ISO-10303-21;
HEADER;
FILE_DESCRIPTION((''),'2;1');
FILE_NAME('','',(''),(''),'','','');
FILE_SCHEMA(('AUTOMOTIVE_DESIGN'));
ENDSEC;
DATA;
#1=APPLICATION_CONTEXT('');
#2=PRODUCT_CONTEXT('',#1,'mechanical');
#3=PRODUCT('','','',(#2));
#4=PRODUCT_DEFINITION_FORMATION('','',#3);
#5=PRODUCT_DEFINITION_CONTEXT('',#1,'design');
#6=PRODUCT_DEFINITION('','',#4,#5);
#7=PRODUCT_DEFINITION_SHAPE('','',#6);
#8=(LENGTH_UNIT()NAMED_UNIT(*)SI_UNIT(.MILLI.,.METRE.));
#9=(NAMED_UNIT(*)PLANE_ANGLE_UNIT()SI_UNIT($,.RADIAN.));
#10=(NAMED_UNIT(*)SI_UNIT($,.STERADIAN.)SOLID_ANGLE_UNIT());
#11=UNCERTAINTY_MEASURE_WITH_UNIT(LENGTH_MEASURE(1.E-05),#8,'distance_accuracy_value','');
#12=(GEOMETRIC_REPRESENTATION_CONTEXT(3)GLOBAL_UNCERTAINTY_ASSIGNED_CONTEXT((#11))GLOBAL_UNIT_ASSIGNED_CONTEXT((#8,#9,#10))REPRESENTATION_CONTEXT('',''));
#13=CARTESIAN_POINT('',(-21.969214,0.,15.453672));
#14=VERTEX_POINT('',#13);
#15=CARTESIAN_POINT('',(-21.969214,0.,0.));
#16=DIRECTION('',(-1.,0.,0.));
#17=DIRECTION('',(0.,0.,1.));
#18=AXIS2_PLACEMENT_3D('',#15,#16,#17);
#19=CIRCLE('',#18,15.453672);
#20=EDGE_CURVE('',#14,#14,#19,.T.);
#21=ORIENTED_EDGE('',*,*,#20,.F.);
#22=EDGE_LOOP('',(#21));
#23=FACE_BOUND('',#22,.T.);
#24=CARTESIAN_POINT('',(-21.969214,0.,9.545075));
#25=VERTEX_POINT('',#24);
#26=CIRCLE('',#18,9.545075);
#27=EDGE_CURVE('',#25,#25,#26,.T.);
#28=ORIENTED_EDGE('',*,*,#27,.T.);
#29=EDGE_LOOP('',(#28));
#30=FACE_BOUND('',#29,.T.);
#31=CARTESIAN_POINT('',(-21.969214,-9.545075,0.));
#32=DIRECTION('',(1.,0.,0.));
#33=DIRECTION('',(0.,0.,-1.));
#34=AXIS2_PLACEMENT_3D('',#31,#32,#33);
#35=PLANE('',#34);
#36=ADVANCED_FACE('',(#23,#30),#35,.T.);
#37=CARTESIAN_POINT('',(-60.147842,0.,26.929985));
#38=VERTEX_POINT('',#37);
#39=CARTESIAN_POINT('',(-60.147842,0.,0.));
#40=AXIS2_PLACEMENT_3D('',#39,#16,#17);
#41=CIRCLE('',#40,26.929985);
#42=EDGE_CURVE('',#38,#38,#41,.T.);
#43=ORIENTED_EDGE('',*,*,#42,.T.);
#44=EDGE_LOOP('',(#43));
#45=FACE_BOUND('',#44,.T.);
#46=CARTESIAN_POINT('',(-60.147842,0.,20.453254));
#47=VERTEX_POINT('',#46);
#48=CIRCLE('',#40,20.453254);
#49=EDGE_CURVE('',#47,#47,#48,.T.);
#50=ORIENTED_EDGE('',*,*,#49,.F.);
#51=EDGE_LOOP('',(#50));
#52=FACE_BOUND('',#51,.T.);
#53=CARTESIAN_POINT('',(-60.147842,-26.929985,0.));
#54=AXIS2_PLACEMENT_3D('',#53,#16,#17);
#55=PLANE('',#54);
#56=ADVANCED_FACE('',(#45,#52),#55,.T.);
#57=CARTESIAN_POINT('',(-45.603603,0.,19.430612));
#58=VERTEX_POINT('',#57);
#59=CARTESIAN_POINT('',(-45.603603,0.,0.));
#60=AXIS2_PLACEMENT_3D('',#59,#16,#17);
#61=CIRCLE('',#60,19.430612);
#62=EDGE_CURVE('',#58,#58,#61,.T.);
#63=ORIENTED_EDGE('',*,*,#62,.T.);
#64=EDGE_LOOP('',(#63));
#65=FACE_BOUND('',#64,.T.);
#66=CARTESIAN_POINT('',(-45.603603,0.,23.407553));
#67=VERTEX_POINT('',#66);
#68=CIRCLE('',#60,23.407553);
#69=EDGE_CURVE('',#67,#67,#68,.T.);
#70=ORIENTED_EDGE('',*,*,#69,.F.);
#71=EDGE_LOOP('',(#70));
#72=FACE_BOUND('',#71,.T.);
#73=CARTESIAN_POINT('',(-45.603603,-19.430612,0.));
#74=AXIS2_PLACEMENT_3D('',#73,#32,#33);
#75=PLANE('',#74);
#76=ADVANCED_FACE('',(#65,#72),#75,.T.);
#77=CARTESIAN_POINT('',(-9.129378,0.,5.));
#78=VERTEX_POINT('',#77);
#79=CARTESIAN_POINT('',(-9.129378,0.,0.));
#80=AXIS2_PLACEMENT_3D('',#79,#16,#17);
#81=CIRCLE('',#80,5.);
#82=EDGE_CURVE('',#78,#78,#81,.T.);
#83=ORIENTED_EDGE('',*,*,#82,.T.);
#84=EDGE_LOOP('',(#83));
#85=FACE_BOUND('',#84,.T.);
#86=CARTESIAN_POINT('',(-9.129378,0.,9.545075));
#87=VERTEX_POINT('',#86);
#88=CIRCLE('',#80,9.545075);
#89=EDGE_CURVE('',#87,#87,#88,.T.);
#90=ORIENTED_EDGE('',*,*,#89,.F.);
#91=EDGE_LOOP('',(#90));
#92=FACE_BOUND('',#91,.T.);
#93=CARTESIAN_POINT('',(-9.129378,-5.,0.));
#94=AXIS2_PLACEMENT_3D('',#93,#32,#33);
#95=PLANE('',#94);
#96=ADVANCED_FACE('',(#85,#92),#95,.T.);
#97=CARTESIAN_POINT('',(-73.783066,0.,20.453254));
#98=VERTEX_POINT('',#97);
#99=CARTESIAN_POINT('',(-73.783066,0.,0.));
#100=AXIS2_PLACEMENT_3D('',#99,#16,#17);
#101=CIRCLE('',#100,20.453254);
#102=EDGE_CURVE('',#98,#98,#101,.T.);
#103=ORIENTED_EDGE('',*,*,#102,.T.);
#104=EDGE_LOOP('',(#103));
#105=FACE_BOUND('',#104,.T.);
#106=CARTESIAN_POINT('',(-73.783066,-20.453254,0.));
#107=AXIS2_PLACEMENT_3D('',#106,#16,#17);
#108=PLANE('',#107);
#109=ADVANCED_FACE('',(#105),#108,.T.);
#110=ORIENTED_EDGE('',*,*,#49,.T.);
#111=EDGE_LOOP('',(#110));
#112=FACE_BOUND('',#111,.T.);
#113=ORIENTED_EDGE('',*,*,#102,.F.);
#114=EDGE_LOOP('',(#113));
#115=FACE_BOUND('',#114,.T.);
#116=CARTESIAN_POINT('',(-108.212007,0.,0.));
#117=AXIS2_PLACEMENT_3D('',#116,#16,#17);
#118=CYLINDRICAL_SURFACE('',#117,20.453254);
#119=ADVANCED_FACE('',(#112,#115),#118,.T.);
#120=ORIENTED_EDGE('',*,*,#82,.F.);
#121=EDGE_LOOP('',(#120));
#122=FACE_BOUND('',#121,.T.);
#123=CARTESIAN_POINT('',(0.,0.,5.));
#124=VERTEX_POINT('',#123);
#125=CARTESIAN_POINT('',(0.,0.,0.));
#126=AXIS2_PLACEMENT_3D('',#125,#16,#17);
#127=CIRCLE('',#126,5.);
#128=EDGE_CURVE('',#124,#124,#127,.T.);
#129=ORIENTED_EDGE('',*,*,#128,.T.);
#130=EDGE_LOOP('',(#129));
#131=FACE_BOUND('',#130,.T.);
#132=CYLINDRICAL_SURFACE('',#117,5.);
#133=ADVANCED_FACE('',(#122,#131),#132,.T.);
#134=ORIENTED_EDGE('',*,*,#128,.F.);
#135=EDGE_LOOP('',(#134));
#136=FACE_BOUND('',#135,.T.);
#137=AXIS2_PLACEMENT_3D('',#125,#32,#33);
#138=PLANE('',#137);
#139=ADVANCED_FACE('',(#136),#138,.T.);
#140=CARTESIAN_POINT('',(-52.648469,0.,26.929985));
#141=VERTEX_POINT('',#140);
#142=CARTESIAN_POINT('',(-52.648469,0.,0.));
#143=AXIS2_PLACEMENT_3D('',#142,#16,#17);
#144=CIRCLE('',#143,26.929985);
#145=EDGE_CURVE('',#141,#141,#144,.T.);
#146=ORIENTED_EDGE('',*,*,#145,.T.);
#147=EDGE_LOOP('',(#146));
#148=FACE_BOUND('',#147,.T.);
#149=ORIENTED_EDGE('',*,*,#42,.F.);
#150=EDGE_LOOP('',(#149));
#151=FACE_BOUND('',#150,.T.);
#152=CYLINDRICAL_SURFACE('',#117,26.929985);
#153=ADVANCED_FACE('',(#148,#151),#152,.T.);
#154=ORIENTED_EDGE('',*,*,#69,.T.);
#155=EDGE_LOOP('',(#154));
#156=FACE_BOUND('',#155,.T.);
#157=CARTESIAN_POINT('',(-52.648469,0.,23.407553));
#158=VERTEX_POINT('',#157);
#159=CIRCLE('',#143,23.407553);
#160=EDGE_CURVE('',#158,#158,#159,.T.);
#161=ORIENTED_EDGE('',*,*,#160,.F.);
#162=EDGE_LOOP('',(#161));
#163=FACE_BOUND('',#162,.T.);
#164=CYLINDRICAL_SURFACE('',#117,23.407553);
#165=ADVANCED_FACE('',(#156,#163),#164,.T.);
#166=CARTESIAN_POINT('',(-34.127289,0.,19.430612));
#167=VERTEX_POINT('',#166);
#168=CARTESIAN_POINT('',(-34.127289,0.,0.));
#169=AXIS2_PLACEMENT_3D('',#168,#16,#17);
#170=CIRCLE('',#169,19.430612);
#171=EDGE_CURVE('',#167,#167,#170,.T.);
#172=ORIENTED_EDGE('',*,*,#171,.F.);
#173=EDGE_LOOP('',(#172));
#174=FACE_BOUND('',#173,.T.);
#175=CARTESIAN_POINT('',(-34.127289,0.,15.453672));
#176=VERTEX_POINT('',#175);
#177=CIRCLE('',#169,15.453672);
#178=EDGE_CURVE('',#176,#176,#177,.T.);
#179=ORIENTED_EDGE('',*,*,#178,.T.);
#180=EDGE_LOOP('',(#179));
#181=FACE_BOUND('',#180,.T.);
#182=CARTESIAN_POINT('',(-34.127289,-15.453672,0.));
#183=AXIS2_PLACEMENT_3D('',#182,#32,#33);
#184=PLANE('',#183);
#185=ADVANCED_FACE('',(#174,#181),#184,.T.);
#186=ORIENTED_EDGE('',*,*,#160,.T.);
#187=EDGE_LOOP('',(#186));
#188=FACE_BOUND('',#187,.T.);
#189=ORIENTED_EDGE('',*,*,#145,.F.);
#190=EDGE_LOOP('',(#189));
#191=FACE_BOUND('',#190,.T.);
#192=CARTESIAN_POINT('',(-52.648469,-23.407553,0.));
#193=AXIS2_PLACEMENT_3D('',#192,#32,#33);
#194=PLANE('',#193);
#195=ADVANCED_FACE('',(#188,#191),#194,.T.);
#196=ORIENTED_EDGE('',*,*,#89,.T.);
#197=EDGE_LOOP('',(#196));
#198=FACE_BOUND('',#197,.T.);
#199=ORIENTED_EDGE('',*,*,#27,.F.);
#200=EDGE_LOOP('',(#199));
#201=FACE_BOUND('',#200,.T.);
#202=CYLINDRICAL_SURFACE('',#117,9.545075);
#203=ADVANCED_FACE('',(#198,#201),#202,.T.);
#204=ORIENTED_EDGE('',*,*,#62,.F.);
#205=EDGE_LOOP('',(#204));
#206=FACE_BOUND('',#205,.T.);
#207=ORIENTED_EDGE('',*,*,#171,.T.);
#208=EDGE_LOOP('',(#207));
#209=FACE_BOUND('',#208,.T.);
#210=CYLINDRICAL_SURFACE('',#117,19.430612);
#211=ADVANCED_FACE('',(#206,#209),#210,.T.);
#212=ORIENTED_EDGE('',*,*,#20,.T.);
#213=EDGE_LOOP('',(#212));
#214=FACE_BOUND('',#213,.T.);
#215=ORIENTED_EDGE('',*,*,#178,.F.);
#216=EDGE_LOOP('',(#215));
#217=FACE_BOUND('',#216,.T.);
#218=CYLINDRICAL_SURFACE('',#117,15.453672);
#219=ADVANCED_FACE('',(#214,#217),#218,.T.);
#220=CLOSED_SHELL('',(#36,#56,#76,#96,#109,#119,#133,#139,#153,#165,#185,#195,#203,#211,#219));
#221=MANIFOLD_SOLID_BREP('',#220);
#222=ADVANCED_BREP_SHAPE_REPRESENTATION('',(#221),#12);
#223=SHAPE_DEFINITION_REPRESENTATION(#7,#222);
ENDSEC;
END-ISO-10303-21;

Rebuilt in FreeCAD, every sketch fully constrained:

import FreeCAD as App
import Part
import Sketcher
from FreeCAD import Vector


def add_polygon(sketch, points):
    """Adds a closed chain of lines whose ends are joined by coincident constraints."""
    first, n = sketch.GeometryCount, len(points)
    for a, b in zip(points, points[1:] + points[:1]):
        sketch.addGeometry(Part.LineSegment(App.Vector(*a, 0), App.Vector(*b, 0)), False)
    for i in range(n):
        sketch.addConstraint(Sketcher.Constraint("Coincident", first + i, 2, first + (i + 1) % n, 1))

doc = App.newDocument("Part")
params = doc.addObject("Spreadsheet::Sheet", "Params")
for row, (alias, value) in enumerate([
    ("sketch1_height", "5 mm"),
    ("revolution_angle", "360 deg"),
], start=1):
    params.set(f"A{row}", alias)
    params.set(f"B{row}", "=" + value)
    params.setAlias(f"B{row}", alias)

body = doc.addObject("PartDesign::Body", "Body")

sketch1 = body.newObject("Sketcher::SketchObject", "Sketch")
sketch1.AttachmentSupport = (doc.getObject("XY_Plane"), [""])
sketch1.MapMode = "FlatFace"
add_polygon(sketch1, [(0, -5), (0, 0), (-73.8, 0), (-73.8, -20.5), (-60.1, -20.5), (-60.1, -26.9), (-52.6, -26.9), (-52.6, -23.4), (-45.6, -23.4), (-45.6, -19.4), (-34.1, -19.4), (-34.1, -15.5), (-22, -15.5), (-22, -9.5), (-9.1, -9.5), (-9.1, -5)])
sketch1.addConstraint([
    Sketcher.Constraint("Vertical", 0),
    Sketcher.Constraint("Horizontal", 1),
    Sketcher.Constraint("Vertical", 2),
    Sketcher.Constraint("Horizontal", 3),
    Sketcher.Constraint("Vertical", 4),
    Sketcher.Constraint("Horizontal", 5),
    Sketcher.Constraint("Vertical", 6),
    Sketcher.Constraint("Horizontal", 7),
    Sketcher.Constraint("Vertical", 8),
    Sketcher.Constraint("Horizontal", 9),
    Sketcher.Constraint("Vertical", 10),
    Sketcher.Constraint("Horizontal", 11),
    Sketcher.Constraint("Vertical", 12),
    Sketcher.Constraint("Horizontal", 13),
    Sketcher.Constraint("Vertical", 14),
    Sketcher.Constraint("Horizontal", 15),
    Sketcher.Constraint("Coincident", 0, 2, -1, 1),
    Sketcher.Constraint("Equal", 8, 10),
    Sketcher.Constraint("DistanceY", 0, 1, 0, 2, 5.0),
    Sketcher.Constraint("DistanceX", 15, 1, 15, 2, 9.129378),
    Sketcher.Constraint("DistanceY", 4, 2, 4, 1, 6.476731),
    Sketcher.Constraint("DistanceY", 8, 1, 8, 2, 3.97694),
    Sketcher.Constraint("DistanceY", 6, 2, 3, 2, 2.954299),
    Sketcher.Constraint("DistanceX", 1, 2, 1, 1, 73.783066),
    Sketcher.Constraint("DistanceX", 3, 1, 3, 2, 13.635224),
    Sketcher.Constraint("DistanceX", 5, 1, 5, 2, 7.499373),
    Sketcher.Constraint("DistanceX", 7, 1, 7, 2, 7.044866),
    Sketcher.Constraint("DistanceX", 9, 1, 9, 2, 11.476314),
    Sketcher.Constraint("DistanceX", 11, 1, 11, 2, 12.158075),
    Sketcher.Constraint("DistanceY", 2, 2, 2, 1, 20.453254),
    Sketcher.Constraint("DistanceY", 12, 1, 12, 2, 5.908597),
])
sketch1.setExpression("Constraints[34]", "Params.sketch1_height")
revolution = body.newObject("PartDesign::Revolution", "Revolution")
revolution.Profile = sketch1
revolution.ReferenceAxis = (sketch1, ["H_Axis"])
revolution.setExpression("Angle", "Params.revolution_angle")

doc.recompute()
